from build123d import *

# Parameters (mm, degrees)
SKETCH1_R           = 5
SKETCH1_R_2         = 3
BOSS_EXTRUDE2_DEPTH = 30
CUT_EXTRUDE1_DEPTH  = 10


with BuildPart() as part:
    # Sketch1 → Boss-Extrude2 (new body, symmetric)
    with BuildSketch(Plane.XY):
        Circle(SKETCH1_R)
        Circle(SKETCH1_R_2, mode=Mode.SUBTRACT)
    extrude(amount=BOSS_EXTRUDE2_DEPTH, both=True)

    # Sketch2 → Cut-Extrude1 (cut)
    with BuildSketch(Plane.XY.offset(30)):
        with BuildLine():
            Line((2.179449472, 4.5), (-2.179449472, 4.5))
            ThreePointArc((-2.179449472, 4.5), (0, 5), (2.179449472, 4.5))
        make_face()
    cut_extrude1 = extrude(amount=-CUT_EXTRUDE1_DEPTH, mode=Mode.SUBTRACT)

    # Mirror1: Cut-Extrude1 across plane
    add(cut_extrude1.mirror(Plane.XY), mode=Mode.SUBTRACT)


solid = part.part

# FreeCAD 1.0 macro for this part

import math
import FreeCAD as App
import Part
import Sketcher
Q = App.Units.Quantity

doc = App.newDocument("Part")
body = doc.addObject("PartDesign::Body", "Body")

sketch1 = body.newObject("Sketcher::SketchObject", "Sketch")
sketch1.AttachmentSupport = (doc.getObject("XY_Plane"), [""])
sketch1.MapMode = "FlatFace"
sketch1.addGeometry([
    Part.Circle(App.Vector(0, 0, 0), App.Vector(0, 0, 1), 5),
    Part.Circle(App.Vector(0, 0, 0), App.Vector(0, 0, 1), 3),
], False)
sketch1.addConstraint([
    Sketcher.Constraint("Coincident", 0, 3, -1, 1),
    Sketcher.Constraint("Coincident", 1, 3, -1, 1),
    Sketcher.Constraint("Diameter", 0, Q("10 mm")),
    Sketcher.Constraint("Diameter", 1, Q("6 mm")),
])
pad1 = body.newObject("PartDesign::Pad", "Pad")
pad1.Profile = sketch1
pad1.Length = 60
pad1.Midplane = True

sketch2 = body.newObject("Sketcher::SketchObject", "Sketch001")
sketch2.AttachmentSupport = (doc.getObject("XY_Plane"), [""])
sketch2.MapMode = "FlatFace"
sketch2.AttachmentOffset = App.Placement(App.Vector(0, 0, 30), App.Rotation())
sketch2.addGeometry([
    Part.LineSegment(App.Vector(-2.179449, 4.5, 0), App.Vector(2.179449, 4.5, 0)),
    Part.ArcOfCircle(Part.Circle(App.Vector(0, 0, 0), App.Vector(0, 0, 1), 5), math.radians(64.158067), math.radians(115.841933)),
], False)
sketch2.addConstraint([
    Sketcher.Constraint("Coincident", 0, 1, 1, 2),
    Sketcher.Constraint("Coincident", 1, 1, 0, 2),
    Sketcher.Constraint("Horizontal", 0),
    Sketcher.Constraint("Coincident", 1, 3, -1, 1),
    Sketcher.Constraint("Radius", 1, Q("5 mm")),
    Sketcher.Constraint("DistanceY", -1, 1, 0, 1, Q("4.5 mm")),
])
pocket1 = body.newObject("PartDesign::Pocket", "Pocket")
pocket1.Profile = sketch2
pocket1.Length = 10
doc.recompute()

mirrored = body.newObject("PartDesign::Mirrored", "Mirrored")
mirrored.Originals = [pocket1]
mirrored.MirrorPlane = (doc.getObject("XY_Plane"), [""])
body.Tip = mirrored

doc.recompute()
